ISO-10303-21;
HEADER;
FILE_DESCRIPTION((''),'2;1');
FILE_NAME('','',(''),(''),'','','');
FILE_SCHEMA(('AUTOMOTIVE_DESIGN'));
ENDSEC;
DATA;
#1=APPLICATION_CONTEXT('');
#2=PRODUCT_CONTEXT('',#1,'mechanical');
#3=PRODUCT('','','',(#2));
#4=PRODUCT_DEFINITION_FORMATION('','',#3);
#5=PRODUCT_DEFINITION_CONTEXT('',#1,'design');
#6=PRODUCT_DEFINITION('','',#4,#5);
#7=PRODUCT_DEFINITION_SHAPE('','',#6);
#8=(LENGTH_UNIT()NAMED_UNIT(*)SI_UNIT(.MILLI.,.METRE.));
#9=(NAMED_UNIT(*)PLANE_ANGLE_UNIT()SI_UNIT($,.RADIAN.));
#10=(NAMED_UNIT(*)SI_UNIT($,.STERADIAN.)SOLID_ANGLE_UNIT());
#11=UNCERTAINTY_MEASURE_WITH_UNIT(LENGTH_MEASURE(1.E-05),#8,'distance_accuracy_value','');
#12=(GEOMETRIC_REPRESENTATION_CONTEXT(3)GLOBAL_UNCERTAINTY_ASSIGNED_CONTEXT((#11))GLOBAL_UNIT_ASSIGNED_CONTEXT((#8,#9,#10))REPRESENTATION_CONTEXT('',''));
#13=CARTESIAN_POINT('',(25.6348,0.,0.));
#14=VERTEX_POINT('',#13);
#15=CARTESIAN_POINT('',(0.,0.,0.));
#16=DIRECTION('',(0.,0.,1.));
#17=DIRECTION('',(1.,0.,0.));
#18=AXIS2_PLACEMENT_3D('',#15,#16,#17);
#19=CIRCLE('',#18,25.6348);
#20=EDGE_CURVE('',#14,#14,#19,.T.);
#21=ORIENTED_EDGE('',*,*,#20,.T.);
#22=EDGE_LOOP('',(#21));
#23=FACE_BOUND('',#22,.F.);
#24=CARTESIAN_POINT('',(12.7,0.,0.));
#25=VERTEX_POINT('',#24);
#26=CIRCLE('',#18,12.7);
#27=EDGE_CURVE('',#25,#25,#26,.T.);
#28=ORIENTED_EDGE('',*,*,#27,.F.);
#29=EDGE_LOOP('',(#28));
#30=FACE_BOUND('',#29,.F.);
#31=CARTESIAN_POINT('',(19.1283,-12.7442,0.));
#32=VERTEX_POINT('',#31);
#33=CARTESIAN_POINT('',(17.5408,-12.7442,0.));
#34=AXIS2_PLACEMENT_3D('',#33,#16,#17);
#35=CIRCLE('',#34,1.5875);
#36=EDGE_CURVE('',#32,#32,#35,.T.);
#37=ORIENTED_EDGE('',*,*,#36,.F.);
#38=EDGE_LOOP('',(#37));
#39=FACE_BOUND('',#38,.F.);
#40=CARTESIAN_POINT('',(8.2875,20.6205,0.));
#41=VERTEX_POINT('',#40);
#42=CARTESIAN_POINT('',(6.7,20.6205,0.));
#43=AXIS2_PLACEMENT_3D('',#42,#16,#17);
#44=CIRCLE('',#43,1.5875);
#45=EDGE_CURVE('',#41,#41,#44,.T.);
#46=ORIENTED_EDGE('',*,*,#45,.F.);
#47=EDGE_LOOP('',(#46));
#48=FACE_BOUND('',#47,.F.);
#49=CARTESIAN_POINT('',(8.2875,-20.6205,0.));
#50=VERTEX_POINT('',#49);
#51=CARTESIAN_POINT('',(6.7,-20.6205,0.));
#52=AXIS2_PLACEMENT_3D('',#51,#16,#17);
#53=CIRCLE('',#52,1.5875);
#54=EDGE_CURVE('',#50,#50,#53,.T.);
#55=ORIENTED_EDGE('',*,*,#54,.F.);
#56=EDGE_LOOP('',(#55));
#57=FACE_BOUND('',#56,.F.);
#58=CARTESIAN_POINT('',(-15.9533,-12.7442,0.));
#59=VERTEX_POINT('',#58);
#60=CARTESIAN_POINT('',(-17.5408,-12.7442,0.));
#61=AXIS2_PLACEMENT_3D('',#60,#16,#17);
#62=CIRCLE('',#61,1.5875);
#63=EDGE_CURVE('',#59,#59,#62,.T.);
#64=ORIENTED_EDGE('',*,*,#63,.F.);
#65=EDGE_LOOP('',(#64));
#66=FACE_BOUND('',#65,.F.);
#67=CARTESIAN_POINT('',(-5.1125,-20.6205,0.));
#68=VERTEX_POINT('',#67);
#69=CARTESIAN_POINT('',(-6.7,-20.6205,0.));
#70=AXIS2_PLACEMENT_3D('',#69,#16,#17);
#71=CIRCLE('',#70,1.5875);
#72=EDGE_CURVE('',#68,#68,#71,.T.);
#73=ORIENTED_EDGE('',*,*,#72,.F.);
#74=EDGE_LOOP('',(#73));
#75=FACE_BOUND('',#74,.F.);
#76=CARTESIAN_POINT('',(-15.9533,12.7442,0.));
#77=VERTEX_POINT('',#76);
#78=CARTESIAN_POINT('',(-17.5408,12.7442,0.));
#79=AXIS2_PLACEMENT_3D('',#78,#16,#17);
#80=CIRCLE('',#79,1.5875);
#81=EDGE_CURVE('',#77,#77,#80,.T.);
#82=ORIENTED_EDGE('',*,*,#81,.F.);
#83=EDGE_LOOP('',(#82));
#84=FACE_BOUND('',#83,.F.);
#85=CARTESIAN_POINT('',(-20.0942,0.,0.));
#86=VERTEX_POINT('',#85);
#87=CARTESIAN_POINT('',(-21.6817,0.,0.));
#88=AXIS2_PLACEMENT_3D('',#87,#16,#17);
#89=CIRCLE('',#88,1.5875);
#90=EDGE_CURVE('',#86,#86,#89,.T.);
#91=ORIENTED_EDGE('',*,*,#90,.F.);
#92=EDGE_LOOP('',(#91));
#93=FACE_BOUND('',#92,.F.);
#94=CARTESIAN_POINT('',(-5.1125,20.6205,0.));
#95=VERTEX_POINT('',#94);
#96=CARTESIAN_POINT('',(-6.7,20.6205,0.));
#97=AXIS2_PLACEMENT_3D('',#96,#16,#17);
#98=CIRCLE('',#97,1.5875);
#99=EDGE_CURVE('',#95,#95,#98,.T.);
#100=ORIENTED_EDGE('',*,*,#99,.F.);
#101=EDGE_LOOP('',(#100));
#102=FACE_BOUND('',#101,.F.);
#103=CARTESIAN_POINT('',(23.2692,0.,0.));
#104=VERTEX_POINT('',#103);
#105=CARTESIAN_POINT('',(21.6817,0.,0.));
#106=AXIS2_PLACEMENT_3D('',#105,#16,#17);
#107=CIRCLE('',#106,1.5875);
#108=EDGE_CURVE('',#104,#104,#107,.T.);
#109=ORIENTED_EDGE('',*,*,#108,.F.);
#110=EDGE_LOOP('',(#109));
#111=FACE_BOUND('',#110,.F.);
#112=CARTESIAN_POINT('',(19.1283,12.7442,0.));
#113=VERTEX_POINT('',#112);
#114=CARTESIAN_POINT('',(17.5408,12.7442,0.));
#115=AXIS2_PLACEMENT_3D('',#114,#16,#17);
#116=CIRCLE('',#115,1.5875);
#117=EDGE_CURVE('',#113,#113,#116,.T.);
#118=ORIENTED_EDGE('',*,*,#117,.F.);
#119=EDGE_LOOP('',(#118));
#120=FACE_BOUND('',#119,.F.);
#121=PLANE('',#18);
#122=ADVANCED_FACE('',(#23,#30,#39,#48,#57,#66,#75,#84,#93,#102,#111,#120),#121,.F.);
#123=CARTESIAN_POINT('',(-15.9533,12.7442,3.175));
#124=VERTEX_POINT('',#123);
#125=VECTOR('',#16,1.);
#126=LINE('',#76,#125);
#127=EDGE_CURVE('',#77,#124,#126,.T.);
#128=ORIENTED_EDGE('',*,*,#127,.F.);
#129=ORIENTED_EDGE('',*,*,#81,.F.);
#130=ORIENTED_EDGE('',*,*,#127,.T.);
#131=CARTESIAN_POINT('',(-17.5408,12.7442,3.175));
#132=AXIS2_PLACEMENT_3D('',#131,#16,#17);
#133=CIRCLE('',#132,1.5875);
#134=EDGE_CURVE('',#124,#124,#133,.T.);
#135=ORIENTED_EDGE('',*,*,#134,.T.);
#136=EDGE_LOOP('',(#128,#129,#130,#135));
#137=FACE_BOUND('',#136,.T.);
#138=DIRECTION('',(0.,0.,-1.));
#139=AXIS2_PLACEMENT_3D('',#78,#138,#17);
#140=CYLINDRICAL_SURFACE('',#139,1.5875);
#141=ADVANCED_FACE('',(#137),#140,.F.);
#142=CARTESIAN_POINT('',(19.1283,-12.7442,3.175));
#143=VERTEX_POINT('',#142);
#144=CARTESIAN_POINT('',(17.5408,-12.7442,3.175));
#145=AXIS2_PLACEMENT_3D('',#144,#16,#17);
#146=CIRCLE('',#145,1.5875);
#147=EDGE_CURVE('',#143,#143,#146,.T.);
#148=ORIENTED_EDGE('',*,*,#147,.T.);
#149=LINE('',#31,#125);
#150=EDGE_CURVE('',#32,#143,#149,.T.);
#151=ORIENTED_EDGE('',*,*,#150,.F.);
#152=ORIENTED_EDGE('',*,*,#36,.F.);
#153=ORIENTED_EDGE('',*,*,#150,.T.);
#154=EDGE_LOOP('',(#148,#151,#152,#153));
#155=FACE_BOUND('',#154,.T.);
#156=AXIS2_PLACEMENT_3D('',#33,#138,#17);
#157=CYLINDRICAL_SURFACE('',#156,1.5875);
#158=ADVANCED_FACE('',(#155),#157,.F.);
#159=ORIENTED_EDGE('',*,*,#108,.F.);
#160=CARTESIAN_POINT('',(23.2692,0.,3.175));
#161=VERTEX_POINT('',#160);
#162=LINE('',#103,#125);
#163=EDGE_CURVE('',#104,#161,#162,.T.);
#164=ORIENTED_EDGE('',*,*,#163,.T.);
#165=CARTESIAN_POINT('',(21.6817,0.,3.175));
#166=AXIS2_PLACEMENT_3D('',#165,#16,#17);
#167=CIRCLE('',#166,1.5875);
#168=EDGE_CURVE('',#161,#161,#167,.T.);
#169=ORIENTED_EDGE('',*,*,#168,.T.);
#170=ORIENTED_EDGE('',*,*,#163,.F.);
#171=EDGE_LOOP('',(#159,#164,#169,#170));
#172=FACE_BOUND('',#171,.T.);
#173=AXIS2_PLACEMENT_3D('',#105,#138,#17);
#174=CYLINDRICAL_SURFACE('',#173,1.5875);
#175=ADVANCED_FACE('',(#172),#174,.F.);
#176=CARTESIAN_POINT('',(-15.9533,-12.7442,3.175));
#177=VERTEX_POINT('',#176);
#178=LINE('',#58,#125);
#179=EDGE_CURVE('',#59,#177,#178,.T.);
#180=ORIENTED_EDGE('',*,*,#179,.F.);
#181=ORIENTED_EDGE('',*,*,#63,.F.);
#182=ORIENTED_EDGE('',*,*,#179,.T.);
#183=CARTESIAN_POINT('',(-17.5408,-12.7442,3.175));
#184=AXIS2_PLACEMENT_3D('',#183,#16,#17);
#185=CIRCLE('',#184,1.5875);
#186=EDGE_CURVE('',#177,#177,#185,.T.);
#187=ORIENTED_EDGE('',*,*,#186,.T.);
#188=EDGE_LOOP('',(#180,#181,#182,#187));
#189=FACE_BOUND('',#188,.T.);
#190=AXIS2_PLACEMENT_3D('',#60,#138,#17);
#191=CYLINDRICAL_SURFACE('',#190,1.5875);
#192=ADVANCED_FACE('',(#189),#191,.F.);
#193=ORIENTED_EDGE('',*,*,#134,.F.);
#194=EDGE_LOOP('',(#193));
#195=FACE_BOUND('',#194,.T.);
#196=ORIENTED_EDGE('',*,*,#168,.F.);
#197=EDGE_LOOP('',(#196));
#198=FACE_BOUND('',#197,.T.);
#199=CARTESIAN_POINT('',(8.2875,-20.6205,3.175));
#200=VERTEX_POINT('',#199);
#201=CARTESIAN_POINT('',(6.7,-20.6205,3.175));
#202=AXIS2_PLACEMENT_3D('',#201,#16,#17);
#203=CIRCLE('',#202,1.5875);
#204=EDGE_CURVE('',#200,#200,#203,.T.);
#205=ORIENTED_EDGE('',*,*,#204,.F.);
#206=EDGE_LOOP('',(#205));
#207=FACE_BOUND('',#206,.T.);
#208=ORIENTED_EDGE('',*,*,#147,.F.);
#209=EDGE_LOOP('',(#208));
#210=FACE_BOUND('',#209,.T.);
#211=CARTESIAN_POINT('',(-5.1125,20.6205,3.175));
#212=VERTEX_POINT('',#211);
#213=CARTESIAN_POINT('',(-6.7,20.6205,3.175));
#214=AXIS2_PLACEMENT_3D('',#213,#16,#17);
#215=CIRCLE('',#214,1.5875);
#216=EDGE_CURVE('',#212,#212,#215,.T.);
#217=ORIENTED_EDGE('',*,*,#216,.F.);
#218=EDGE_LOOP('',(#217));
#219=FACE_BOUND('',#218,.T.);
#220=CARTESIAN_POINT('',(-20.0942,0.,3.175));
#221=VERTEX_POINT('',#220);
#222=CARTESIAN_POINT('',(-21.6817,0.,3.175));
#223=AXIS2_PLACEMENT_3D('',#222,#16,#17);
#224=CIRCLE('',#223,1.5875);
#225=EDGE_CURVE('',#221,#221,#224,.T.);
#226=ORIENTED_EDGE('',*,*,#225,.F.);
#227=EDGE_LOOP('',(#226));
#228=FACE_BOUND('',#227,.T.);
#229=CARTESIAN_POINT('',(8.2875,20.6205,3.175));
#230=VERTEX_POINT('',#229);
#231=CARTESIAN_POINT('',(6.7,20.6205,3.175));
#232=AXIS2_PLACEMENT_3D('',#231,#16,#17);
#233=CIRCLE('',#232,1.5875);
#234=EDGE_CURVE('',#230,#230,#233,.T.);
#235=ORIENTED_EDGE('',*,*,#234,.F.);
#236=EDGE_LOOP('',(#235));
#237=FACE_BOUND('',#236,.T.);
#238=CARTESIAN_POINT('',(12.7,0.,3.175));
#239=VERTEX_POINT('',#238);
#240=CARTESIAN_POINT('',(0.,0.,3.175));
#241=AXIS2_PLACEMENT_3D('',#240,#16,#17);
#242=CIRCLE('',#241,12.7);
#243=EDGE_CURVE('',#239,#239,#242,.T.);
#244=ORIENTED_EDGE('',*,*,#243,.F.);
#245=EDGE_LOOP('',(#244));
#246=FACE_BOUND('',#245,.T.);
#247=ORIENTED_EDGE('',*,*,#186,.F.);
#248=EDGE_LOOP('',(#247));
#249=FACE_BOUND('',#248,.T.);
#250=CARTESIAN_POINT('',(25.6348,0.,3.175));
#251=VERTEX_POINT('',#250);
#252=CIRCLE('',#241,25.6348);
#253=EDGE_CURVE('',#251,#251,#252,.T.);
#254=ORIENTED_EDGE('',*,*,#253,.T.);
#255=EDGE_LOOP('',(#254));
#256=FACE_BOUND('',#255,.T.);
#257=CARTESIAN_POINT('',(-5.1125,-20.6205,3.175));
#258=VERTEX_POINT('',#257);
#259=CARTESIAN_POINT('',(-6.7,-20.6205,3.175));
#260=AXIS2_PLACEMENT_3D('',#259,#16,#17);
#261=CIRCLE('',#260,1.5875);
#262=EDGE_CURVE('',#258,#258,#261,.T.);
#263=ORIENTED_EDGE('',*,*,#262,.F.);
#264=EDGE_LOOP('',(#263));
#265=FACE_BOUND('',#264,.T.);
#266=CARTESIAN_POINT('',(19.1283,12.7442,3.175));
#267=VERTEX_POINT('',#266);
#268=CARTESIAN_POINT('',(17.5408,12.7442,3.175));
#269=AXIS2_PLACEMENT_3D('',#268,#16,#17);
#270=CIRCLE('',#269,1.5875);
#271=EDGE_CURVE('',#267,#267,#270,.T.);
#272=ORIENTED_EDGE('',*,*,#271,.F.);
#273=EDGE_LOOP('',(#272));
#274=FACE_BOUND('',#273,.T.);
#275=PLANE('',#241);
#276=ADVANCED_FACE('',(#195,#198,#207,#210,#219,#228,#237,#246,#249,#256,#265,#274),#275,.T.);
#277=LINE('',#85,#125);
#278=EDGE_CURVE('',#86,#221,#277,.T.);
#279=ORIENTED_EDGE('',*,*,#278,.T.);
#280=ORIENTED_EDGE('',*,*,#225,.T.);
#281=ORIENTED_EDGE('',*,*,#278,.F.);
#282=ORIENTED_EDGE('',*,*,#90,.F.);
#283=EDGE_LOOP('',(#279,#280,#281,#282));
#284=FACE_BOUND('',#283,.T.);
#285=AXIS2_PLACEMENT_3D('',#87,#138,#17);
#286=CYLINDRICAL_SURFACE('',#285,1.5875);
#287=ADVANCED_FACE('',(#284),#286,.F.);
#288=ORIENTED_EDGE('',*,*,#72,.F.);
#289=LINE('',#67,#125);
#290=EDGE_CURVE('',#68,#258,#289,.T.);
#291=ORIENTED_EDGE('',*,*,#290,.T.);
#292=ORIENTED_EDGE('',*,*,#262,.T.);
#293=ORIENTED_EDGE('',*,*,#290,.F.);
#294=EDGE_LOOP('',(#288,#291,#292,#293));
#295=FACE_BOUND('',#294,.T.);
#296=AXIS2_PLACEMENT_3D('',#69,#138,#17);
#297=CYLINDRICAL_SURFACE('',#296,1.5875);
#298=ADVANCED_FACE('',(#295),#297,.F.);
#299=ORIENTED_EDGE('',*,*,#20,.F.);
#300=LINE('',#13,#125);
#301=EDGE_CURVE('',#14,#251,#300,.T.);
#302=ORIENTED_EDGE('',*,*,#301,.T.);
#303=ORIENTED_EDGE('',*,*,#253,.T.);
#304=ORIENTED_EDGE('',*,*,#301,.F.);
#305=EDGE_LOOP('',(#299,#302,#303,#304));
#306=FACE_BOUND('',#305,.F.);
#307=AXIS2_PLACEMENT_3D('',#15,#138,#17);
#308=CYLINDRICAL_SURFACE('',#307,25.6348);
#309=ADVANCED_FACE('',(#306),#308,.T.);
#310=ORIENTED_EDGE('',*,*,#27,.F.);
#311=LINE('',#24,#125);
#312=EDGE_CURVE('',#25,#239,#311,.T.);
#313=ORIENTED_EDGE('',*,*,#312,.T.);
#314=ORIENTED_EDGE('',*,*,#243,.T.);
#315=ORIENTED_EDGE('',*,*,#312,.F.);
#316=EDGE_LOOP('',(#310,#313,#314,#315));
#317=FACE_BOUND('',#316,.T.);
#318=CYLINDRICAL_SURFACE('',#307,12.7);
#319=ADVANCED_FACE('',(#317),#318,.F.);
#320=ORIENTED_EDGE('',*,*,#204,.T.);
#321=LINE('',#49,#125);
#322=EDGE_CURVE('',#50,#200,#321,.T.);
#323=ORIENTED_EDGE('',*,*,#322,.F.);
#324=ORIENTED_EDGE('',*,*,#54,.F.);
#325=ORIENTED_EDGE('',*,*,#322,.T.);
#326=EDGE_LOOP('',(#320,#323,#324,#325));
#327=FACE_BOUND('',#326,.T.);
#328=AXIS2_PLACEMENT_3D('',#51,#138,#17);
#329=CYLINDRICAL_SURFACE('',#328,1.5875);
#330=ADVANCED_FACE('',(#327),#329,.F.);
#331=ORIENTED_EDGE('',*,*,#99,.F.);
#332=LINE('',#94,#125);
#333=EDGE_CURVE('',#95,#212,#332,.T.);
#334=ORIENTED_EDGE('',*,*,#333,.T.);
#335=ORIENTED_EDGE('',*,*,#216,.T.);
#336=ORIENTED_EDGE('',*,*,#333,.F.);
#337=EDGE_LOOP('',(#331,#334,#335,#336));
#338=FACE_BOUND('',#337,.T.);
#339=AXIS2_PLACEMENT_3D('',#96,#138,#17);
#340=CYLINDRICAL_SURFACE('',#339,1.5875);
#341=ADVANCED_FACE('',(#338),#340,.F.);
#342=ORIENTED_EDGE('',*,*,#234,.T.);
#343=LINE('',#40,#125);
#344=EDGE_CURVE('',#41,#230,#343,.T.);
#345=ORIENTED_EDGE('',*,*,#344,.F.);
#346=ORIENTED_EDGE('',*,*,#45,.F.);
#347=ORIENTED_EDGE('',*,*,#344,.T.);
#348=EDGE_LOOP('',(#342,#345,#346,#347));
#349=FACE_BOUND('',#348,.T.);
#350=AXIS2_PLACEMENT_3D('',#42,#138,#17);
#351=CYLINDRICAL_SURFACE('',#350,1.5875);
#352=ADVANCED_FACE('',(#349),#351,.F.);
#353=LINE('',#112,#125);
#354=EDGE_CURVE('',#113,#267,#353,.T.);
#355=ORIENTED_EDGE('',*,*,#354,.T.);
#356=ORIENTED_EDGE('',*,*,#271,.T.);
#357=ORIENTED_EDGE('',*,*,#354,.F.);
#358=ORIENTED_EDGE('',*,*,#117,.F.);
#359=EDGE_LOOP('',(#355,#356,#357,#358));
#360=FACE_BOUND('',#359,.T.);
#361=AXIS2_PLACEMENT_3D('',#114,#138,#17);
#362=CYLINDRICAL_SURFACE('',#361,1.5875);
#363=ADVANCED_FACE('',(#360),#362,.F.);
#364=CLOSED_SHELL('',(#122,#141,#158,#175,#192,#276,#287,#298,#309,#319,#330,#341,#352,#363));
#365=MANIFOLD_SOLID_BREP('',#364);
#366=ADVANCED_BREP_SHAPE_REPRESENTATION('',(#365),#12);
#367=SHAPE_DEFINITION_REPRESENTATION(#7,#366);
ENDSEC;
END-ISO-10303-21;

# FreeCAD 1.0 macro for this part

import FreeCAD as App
import Part
import Sketcher

V = App.Vector
Q = App.Units.Quantity

doc = App.newDocument("Part")
body = doc.addObject("PartDesign::Body", "Body")

# Sketch on XY plane
sketch1 = doc.addObject("Sketcher::SketchObject", "Sketch")
body.addObject(sketch1)
sketch1.AttachmentSupport = (doc.XY_Plane, [""])
sketch1.MapMode = "FlatFace"
sketch1.addGeometry(Part.Circle(V(0, 0, 0), V(0, 0, 1), 25.6348), False)
sketch1.addGeometry(Part.Circle(V(-6.7, -20.6205, 0), V(0, 0, 1), 1.5875), False)
sketch1.addGeometry(Part.Circle(V(-17.5408, -12.7442, 0), V(0, 0, 1), 1.5875), False)
sketch1.addGeometry(Part.Circle(V(6.7, -20.6205, 0), V(0, 0, 1), 1.5875), False)
sketch1.addGeometry(Part.Circle(V(17.5408, -12.7442, 0), V(0, 0, 1), 1.5875), False)
sketch1.addGeometry(Part.Circle(V(-21.6817, 0, 0), V(0, 0, 1), 1.5875), False)
sketch1.addGeometry(Part.Circle(V(-17.5408, 12.7442, 0), V(0, 0, 1), 1.5875), False)
sketch1.addGeometry(Part.Circle(V(-6.7, 20.6205, 0), V(0, 0, 1), 1.5875), False)
sketch1.addGeometry(Part.Circle(V(0, 0, 0), V(0, 0, 1), 12.7), False)
sketch1.addGeometry(Part.Circle(V(21.6817, 0, 0), V(0, 0, 1), 1.5875), False)
sketch1.addGeometry(Part.Circle(V(17.5408, 12.7442, 0), V(0, 0, 1), 1.5875), False)
sketch1.addGeometry(Part.Circle(V(6.7, 20.6205, 0), V(0, 0, 1), 1.5875), False)
sketch1.addConstraint(Sketcher.Constraint("Coincident", 0, 3, -1, 1))
sketch1.addConstraint(Sketcher.Constraint("Coincident", 8, 3, -1, 1))
sketch1.addConstraint(Sketcher.Constraint("Equal", 1, 2))
sketch1.addConstraint(Sketcher.Constraint("Equal", 2, 3))
sketch1.addConstraint(Sketcher.Constraint("Equal", 3, 4))
sketch1.addConstraint(Sketcher.Constraint("Equal", 4, 5))
sketch1.addConstraint(Sketcher.Constraint("Equal", 5, 6))
sketch1.addConstraint(Sketcher.Constraint("Equal", 6, 7))
sketch1.addConstraint(Sketcher.Constraint("Equal", 7, 9))
sketch1.addConstraint(Sketcher.Constraint("Equal", 9, 10))
sketch1.addConstraint(Sketcher.Constraint("Equal", 10, 11))
sketch1.addConstraint(Sketcher.Constraint("Symmetric", 4, 3, 6, 3, -1, 1))
sketch1.addConstraint(Sketcher.Constraint("Symmetric", 3, 3, 7, 3, -1, 1))
sketch1.addConstraint(Sketcher.Constraint("Symmetric", 5, 3, 9, 3, -1, 1))
sketch1.addConstraint(Sketcher.Constraint("Symmetric", 2, 3, 10, 3, -1, 1))
sketch1.addConstraint(Sketcher.Constraint("Symmetric", 1, 3, 11, 3, -1, 1))
sketch1.addConstraint(Sketcher.Constraint("Symmetric", 1, 3, 3, 3, -2))
sketch1.addConstraint(Sketcher.Constraint("Symmetric", 2, 3, 4, 3, -2))
sketch1.addConstraint(Sketcher.Constraint("PointOnObject", 5, 3, -1))
sketch1.addConstraint(Sketcher.Constraint("Diameter", 8, Q("1 in")))
sketch1.addConstraint(Sketcher.Constraint("Diameter", 1, Q("0.125 in")))
sketch1.addConstraint(Sketcher.Constraint("Diameter", 0, Q("2.0185 in")))
sketch1.addConstraint(Sketcher.Constraint("DistanceX", 5, 3, -1, 1, Q("0.8536 in")))
sketch1.addConstraint(Sketcher.Constraint("DistanceX", 2, 3, 1, 3, Q("0.4268 in")))
sketch1.addConstraint(Sketcher.Constraint("DistanceY", 1, 3, 2, 3, Q("0.3101 in")))
sketch1.addConstraint(Sketcher.Constraint("DistanceX", 5, 3, 3, 3, Q("1.1174 in")))
sketch1.addConstraint(Sketcher.Constraint("DistanceY", 1, 3, -1, 1, Q("20.6205 mm")))
pad1 = doc.addObject("PartDesign::Pad", "Pad")
body.addObject(pad1)
pad1.Profile = sketch1
pad1.Length = Q("0.125 in")

doc.recompute()
